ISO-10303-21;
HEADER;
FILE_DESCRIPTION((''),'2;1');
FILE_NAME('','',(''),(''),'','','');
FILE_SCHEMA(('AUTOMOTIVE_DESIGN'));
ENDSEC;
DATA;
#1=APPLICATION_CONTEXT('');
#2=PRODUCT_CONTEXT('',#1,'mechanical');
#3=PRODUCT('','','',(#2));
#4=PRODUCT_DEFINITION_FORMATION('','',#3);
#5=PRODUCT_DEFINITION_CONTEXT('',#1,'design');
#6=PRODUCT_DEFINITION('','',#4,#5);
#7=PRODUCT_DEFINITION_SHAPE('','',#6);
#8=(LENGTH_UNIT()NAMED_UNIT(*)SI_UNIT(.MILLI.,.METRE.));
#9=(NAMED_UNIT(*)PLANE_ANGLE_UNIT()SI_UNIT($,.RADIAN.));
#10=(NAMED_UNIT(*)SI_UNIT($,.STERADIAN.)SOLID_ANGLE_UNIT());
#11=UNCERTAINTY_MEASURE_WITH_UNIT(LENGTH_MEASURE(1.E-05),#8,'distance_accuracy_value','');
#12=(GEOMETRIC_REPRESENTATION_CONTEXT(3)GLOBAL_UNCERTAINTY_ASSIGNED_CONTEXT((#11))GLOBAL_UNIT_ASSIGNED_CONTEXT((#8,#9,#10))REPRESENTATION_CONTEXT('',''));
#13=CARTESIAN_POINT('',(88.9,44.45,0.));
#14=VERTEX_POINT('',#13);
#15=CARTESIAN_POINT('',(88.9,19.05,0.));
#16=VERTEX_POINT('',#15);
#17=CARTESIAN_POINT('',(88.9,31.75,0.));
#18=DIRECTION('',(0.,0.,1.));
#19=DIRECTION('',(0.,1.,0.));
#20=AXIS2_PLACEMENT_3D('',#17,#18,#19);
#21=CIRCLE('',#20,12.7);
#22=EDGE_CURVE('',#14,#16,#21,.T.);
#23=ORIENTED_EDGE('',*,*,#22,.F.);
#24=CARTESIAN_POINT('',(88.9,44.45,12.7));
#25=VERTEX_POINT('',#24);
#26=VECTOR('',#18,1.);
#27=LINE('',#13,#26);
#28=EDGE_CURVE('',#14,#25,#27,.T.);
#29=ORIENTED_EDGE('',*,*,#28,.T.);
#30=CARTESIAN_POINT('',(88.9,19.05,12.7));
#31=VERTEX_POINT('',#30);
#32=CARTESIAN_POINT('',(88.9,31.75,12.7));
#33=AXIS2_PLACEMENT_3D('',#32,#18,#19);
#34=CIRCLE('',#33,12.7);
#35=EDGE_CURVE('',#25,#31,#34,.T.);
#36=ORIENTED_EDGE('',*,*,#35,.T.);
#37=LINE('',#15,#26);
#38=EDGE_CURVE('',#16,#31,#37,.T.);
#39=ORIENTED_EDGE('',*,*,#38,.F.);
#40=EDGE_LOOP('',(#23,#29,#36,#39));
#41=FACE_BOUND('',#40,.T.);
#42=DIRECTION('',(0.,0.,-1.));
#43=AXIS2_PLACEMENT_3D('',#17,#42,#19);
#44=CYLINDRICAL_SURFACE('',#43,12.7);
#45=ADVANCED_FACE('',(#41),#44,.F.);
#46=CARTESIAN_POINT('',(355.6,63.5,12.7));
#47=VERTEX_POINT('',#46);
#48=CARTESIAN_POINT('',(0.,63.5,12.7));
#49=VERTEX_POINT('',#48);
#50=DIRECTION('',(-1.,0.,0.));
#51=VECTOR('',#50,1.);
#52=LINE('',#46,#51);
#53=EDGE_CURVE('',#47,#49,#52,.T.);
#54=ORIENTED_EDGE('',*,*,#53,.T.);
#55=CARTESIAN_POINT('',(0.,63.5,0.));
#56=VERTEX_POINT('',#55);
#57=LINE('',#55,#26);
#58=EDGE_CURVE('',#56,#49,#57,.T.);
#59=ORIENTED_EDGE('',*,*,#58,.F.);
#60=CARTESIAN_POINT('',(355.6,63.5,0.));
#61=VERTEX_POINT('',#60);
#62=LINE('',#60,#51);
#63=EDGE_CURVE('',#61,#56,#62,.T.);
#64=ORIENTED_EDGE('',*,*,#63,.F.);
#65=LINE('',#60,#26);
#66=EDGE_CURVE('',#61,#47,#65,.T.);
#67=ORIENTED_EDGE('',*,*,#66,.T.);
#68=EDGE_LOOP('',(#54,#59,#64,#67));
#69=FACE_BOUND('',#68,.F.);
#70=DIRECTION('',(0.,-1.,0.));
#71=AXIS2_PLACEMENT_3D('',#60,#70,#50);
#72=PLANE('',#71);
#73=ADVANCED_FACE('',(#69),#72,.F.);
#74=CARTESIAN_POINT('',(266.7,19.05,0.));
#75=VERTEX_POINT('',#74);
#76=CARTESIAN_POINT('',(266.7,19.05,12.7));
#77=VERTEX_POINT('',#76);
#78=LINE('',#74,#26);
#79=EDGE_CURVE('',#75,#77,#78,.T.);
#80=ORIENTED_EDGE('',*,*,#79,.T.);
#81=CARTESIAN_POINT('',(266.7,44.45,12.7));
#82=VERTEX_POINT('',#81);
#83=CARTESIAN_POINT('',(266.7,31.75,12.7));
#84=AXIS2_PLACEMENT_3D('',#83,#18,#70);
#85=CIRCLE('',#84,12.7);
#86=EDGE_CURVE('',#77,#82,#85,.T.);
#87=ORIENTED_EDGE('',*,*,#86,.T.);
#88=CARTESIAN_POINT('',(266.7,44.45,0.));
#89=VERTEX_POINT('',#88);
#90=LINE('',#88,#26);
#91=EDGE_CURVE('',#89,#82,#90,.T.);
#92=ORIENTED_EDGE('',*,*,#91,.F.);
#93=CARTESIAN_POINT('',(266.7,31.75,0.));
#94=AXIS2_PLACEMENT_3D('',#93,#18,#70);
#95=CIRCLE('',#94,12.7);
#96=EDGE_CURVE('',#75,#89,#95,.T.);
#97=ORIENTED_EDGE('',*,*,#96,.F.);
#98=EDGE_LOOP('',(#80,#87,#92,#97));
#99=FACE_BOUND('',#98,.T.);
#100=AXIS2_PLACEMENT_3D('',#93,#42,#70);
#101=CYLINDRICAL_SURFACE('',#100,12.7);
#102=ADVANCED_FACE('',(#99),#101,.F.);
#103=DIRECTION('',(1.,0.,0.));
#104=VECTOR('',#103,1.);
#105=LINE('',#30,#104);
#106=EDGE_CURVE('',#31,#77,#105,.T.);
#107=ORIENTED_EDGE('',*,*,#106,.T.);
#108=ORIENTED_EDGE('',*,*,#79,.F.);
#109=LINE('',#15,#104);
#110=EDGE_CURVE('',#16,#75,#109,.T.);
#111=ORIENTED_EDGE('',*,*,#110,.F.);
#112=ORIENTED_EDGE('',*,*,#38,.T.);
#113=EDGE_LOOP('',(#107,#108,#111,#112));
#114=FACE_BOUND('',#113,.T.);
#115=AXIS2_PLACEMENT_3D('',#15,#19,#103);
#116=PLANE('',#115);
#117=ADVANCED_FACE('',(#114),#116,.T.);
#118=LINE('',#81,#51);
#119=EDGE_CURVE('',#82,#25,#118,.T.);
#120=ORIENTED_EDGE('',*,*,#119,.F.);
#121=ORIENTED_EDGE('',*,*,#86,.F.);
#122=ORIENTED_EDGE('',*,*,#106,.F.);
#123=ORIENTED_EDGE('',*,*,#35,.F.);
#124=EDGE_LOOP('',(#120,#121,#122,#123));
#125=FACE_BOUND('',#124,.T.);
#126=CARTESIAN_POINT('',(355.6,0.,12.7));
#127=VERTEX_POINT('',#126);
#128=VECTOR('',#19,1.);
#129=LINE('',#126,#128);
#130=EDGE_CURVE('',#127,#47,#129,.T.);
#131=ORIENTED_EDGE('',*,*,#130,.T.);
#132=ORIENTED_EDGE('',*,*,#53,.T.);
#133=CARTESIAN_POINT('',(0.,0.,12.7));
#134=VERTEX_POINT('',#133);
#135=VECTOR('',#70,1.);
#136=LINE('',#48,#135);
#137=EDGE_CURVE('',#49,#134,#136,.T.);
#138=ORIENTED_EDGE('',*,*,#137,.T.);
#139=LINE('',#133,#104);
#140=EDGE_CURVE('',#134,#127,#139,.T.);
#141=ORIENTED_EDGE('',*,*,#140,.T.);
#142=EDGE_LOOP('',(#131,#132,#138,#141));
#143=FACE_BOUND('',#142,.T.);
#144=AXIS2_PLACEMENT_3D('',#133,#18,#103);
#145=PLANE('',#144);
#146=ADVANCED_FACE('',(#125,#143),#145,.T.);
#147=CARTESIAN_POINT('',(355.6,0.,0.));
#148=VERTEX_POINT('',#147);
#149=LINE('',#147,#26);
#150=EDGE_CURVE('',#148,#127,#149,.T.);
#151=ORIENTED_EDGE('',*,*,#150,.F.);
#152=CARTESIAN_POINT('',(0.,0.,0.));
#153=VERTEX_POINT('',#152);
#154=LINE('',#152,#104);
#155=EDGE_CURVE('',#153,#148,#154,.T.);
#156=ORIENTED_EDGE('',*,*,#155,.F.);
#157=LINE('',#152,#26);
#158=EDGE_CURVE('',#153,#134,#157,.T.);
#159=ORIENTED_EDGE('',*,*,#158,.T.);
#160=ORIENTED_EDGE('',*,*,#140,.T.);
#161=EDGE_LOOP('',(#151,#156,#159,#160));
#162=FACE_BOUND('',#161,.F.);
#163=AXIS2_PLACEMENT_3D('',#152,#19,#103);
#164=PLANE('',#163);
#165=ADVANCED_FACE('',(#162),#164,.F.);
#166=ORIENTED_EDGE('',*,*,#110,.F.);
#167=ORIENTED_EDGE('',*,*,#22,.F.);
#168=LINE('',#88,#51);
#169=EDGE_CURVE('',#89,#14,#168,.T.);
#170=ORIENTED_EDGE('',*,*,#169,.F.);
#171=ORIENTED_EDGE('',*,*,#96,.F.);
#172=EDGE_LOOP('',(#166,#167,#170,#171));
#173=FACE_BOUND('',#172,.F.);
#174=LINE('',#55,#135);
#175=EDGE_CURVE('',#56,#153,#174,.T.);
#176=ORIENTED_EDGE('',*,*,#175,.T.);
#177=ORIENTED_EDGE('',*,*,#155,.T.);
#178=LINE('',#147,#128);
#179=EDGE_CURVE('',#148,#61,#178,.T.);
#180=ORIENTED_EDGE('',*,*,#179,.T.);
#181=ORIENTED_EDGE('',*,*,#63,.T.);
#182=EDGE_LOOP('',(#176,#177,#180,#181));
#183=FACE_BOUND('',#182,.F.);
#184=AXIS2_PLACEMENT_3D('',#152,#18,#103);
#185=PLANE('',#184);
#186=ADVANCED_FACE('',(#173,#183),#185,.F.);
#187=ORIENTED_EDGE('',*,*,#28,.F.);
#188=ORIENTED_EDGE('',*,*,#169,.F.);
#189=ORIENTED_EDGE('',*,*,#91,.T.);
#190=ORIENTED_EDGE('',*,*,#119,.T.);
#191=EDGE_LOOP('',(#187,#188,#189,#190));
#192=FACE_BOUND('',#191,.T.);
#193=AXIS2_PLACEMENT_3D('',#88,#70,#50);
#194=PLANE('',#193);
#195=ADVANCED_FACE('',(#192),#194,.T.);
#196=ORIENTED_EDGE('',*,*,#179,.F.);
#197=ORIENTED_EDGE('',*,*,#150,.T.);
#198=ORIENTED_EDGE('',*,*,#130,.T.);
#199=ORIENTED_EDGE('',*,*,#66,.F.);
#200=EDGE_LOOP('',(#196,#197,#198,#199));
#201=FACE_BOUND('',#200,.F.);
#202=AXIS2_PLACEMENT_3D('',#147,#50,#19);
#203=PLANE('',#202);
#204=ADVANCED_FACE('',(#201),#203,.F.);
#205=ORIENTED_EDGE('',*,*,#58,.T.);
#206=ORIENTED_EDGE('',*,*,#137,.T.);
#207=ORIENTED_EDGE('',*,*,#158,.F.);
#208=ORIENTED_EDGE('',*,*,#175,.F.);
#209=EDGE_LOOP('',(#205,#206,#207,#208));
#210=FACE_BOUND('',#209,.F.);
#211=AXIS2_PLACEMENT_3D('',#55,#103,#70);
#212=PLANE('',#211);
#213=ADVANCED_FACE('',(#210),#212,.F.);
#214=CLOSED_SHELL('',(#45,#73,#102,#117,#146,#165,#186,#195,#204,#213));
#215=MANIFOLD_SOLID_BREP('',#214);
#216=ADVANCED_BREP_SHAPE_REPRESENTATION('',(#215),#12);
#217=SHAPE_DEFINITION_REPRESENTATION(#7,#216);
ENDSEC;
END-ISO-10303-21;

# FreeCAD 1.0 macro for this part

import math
import FreeCAD as App
import Part
import Sketcher

V = App.Vector
Q = App.Units.Quantity


def add_polygon(sketch, points):
    """Adds a closed chain of lines whose ends are joined by coincident constraints."""
    first, n = sketch.GeometryCount, len(points)
    for a, b in zip(points, points[1:] + points[:1]):
        sketch.addGeometry(Part.LineSegment(App.Vector(*a, 0), App.Vector(*b, 0)), False)
    for i in range(n):
        sketch.addConstraint(Sketcher.Constraint("Coincident", first + i, 2, first + (i + 1) % n, 1))

doc = App.newDocument("Part")
params = doc.addObject("Spreadsheet::Sheet", "Params")
for row, (alias, value) in enumerate([
    ("sketch1_radius", "0.5 in"),
    ("sketch1_width", "14 in"),
    ("sketch1_width2", "7 in"),
    ("sketch1_height", "2.5 in"),
    ("pad1_length", "0.5 in"),
], start=1):
    params.set(f"A{row}", alias)
    params.set(f"B{row}", "=" + value)
    params.setAlias(f"B{row}", alias)

body = doc.addObject("PartDesign::Body", "Body")

# Sketch on XY plane
sketch1 = body.newObject("Sketcher::SketchObject", "Sketch")
sketch1.AttachmentSupport = (doc.getObject("XY_Plane"), [""])
sketch1.MapMode = "FlatFace"
add_polygon(sketch1, [(0, 63.5), (0, 0), (355.6, 0), (355.6, 63.5)])  # lines 0-3
sketch1.addGeometry(Part.LineSegment(V(266.7, 19.05, 0), V(88.9, 19.05, 0)), False)  # 4
sketch1.addGeometry(Part.ArcOfCircle(Part.Circle(V(88.9, 31.75, 0), V(0, 0, 1), 12.7), math.radians(90), math.radians(270)), False)  # 5
sketch1.addGeometry(Part.LineSegment(V(88.9, 44.45, 0), V(266.7, 44.45, 0)), False)  # 6
sketch1.addGeometry(Part.ArcOfCircle(Part.Circle(V(266.7, 31.75, 0), V(0, 0, 1), 12.7), math.radians(-90), math.radians(90)), False)  # 7
sketch1.addConstraint(Sketcher.Constraint("Tangent", 4, 2, 5, 2))
sketch1.addConstraint(Sketcher.Constraint("Tangent", 5, 1, 6, 1))
sketch1.addConstraint(Sketcher.Constraint("Tangent", 6, 2, 7, 2))
sketch1.addConstraint(Sketcher.Constraint("Tangent", 7, 1, 4, 1))
sketch1.addConstraint(Sketcher.Constraint("Vertical", 0))
sketch1.addConstraint(Sketcher.Constraint("Horizontal", 1))
sketch1.addConstraint(Sketcher.Constraint("Vertical", 2))
sketch1.addConstraint(Sketcher.Constraint("Horizontal", 3))
sketch1.addConstraint(Sketcher.Constraint("Horizontal", 4))
sketch1.addConstraint(Sketcher.Constraint("Horizontal", 6))
sketch1.addConstraint(Sketcher.Constraint("Coincident", 0, 2, -1, 1))
sketch1.addConstraint(Sketcher.Constraint("Radius", 5, Q("0.5 in")))
sketch1.addConstraint(Sketcher.Constraint("DistanceX", 1, 1, 1, 2, Q("14 in")))
sketch1.addConstraint(Sketcher.Constraint("DistanceX", 4, 2, 4, 1, Q("7 in")))
sketch1.addConstraint(Sketcher.Constraint("DistanceY", 0, 2, 0, 1, Q("2.5 in")))
sketch1.addConstraint(Sketcher.Constraint("DistanceX", -1, 1, 5, 3, Q("3.5 in")))
sketch1.addConstraint(Sketcher.Constraint("DistanceY", -1, 1, 5, 3, Q("1.25 in")))
sketch1.setExpression("Constraints[15]", "Params.sketch1_radius")
sketch1.setExpression("Constraints[16]", "Params.sketch1_width")
sketch1.setExpression("Constraints[17]", "Params.sketch1_width2")
sketch1.setExpression("Constraints[18]", "Params.sketch1_height")
pad1 = body.newObject("PartDesign::Pad", "Pad")
pad1.Profile = sketch1
pad1.setExpression("Length", "Params.pad1_length")

doc.recompute()
